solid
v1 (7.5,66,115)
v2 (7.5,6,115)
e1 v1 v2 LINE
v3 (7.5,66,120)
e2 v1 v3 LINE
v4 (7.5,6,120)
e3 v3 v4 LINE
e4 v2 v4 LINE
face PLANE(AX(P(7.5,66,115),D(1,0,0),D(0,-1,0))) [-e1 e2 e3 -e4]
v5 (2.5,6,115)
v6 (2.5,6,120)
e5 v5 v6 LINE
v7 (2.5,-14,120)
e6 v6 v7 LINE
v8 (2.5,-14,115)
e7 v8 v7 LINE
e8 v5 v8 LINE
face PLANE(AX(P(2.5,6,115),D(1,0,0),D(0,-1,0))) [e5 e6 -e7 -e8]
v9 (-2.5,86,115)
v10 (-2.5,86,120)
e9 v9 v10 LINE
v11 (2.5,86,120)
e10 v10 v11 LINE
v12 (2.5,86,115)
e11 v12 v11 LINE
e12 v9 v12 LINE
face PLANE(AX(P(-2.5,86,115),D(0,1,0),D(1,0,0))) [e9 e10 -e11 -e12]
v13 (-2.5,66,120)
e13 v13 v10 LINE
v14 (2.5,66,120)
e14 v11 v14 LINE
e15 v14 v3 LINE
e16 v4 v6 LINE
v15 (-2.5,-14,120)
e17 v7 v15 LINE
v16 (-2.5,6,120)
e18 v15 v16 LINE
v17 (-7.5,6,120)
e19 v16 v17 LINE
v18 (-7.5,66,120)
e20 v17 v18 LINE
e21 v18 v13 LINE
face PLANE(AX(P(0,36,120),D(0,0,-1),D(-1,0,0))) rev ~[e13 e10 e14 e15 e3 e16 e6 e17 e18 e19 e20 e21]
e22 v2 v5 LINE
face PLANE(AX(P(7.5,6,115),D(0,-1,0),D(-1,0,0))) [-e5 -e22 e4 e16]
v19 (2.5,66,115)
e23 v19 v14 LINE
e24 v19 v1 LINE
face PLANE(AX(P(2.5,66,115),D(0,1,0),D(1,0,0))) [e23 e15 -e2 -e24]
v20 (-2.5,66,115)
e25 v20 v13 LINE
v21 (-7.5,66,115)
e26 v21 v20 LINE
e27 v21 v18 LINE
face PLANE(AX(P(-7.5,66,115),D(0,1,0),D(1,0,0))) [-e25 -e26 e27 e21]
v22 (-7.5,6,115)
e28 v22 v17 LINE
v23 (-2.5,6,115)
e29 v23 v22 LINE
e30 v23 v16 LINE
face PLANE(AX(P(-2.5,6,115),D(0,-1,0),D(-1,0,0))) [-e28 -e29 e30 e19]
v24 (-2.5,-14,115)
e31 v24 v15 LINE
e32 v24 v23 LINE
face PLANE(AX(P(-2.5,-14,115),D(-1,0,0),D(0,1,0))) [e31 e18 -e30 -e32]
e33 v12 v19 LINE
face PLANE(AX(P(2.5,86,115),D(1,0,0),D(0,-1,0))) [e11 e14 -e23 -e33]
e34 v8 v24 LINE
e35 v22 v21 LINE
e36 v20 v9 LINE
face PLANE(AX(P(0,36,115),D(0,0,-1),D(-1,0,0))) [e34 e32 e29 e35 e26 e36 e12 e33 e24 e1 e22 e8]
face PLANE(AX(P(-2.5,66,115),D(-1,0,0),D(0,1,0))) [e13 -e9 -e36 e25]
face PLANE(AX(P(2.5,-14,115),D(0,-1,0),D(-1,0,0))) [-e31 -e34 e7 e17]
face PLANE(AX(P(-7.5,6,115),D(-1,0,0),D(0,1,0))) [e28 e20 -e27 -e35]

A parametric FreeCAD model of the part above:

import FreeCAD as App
import Part
import Sketcher
Q = App.Units.Quantity


def add_polygon(sketch, points):
    """Adds a closed chain of lines whose ends are joined by coincident constraints."""
    first, n = sketch.GeometryCount, len(points)
    for a, b in zip(points, points[1:] + points[:1]):
        sketch.addGeometry(Part.LineSegment(App.Vector(*a, 0), App.Vector(*b, 0)), False)
    for i in range(n):
        sketch.addConstraint(Sketcher.Constraint("Coincident", first + i, 2, first + (i + 1) % n, 1))

doc = App.newDocument("Part")
params = doc.addObject("Spreadsheet::Sheet", "Params")
for row, (alias, value) in enumerate([
    ("sketch1_width", "5 mm"),
    ("sketch1_height", "60 mm"),
    ("sketch1_height2", "20 mm"),
    ("pad1_length", "5 mm"),
], start=1):
    params.set(f"A{row}", alias)
    params.set(f"B{row}", "=" + value)
    params.setAlias(f"B{row}", alias)

body = doc.addObject("PartDesign::Body", "Body")

# Sketch on XY plane
sketch1 = doc.addObject("Sketcher::SketchObject", "Sketch")
body.addObject(sketch1)
sketch1.AttachmentSupport = (doc.XY_Plane, [""])
sketch1.MapMode = "FlatFace"
sketch1.AttachmentOffset = App.Placement(App.Vector(0, 0, 115), App.Rotation())
add_polygon(sketch1, [(7.5, 6), (7.5, 66), (2.5, 66), (2.5, 86), (-2.5, 86), (-2.5, 66), (-7.5, 66), (-7.5, 6), (-2.5, 6), (-2.5, -14), (2.5, -14), (2.5, 6)])  # lines 0-11
sketch1.addConstraint([
    Sketcher.Constraint("Vertical", 0),
    Sketcher.Constraint("Horizontal", 1),
    Sketcher.Constraint("Vertical", 2),
    Sketcher.Constraint("Horizontal", 3),
    Sketcher.Constraint("Vertical", 4),
    Sketcher.Constraint("Horizontal", 5),
    Sketcher.Constraint("Vertical", 6),
    Sketcher.Constraint("Horizontal", 7),
    Sketcher.Constraint("Vertical", 8),
    Sketcher.Constraint("Horizontal", 9),
    Sketcher.Constraint("Vertical", 10),
    Sketcher.Constraint("Horizontal", 11),
    Sketcher.Constraint("Symmetric", 1, 2, 4, 2, -2),
    Sketcher.Constraint("Symmetric", 7, 2, 10, 2, -2),
    Sketcher.Constraint("Vertical", 4, 2, 7, 2),
    Sketcher.Constraint("Equal", 1, 3),
    Sketcher.Constraint("Equal", 3, 5),
    Sketcher.Constraint("Equal", 4, 8),
    Sketcher.Constraint("DistanceX", 1, 2, 1, 1, Q("5 mm")),
    Sketcher.Constraint("DistanceY", 0, 1, 0, 2, Q("60 mm")),
    Sketcher.Constraint("DistanceY", 2, 1, 2, 2, Q("20 mm")),
    Sketcher.Constraint("DistanceY", -1, 1, 0, 2, Q("66 mm")),
])
sketch1.setExpression("Constraints[30]", "Params.sketch1_width")
sketch1.setExpression("Constraints[31]", "Params.sketch1_height")
sketch1.setExpression("Constraints[32]", "Params.sketch1_height2")
pad1 = doc.addObject("PartDesign::Pad", "Pad")
body.addObject(pad1)
pad1.Profile = sketch1
pad1.setExpression("Length", "Params.pad1_length")

doc.recompute()
